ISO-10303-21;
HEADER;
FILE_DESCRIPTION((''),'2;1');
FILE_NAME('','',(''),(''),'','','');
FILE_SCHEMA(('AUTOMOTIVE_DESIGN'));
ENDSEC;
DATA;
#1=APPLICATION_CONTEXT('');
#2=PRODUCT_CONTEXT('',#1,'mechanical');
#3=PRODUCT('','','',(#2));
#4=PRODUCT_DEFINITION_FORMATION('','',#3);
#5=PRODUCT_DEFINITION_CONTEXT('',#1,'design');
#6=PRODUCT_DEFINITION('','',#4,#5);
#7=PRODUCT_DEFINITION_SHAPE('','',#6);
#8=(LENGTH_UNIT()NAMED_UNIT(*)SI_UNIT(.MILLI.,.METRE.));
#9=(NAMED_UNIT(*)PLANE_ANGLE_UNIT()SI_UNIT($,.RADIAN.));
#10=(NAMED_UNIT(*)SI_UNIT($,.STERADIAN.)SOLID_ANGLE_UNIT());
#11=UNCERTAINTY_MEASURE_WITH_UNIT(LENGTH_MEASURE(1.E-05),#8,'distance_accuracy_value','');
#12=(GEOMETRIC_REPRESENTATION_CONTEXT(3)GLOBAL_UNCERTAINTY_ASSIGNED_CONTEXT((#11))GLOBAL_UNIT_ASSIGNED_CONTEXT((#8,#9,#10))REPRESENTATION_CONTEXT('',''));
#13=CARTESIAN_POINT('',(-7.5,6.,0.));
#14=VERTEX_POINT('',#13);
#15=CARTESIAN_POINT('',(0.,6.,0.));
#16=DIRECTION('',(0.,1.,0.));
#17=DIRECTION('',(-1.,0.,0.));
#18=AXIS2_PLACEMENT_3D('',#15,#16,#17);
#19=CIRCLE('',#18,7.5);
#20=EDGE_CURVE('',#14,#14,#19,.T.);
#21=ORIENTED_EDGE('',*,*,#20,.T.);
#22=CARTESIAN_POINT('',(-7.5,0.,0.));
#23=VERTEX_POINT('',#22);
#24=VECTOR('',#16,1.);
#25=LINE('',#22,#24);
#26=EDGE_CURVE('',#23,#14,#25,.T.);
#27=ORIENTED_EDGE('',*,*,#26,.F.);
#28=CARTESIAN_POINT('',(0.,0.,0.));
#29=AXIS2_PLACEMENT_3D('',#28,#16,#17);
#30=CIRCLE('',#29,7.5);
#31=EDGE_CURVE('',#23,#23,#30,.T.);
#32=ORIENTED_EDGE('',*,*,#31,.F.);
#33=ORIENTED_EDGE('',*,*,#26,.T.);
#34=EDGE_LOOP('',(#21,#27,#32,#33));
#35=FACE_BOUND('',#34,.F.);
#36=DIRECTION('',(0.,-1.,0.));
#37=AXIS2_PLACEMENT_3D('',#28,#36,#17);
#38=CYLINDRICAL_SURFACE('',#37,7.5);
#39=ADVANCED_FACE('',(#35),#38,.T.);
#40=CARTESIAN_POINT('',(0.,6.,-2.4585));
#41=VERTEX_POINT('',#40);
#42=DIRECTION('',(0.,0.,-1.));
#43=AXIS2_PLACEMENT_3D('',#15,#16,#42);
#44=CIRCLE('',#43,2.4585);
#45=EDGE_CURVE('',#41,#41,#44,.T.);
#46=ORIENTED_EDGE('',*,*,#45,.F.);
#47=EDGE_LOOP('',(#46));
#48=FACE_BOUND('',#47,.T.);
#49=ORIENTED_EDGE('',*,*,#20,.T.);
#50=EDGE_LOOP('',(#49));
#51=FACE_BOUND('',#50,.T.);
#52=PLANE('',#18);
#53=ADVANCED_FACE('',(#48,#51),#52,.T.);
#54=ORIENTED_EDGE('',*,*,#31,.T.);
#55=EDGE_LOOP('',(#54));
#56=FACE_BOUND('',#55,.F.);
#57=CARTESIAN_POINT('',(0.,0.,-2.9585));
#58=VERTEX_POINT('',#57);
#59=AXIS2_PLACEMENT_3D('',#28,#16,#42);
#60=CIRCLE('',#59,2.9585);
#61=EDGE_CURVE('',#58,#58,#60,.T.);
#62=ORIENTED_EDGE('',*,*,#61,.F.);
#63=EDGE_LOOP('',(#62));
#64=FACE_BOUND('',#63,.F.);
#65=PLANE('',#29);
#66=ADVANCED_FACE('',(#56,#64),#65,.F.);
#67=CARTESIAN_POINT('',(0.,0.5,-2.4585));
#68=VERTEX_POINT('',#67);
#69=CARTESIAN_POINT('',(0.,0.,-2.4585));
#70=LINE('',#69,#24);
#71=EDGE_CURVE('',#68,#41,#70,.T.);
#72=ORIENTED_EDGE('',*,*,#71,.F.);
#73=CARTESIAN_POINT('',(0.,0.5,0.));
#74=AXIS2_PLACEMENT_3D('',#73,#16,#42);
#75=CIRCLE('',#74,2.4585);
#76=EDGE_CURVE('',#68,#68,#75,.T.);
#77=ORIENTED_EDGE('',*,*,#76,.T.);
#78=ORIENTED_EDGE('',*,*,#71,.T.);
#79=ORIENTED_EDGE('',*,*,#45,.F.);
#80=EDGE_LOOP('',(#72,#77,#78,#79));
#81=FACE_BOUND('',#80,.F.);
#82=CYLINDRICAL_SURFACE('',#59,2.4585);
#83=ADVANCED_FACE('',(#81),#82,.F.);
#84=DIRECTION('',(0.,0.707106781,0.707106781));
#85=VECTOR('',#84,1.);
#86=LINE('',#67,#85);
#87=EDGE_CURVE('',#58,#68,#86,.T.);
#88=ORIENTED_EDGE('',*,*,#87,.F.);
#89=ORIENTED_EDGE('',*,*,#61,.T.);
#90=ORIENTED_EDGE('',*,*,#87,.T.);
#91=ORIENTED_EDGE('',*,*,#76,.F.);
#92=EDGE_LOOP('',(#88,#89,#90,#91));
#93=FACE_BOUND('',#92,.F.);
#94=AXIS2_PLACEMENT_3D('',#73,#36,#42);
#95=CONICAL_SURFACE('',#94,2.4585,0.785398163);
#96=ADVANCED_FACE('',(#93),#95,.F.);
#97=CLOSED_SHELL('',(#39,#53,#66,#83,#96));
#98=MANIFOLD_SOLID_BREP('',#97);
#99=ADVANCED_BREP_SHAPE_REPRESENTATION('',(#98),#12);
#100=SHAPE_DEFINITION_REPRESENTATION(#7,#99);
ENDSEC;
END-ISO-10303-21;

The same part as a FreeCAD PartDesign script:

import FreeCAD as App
import Part
import Sketcher
Q = App.Units.Quantity


def edges_at(feature, points):
    """Names of the edges that pass closest to the given points."""
    edges = feature.Shape.Edges
    near = lambda p: min(range(len(edges)), key=lambda i: edges[i].distToShape(Part.Vertex(*p))[0])
    return sorted({f"Edge{near(p) + 1}" for p in points})

doc = App.newDocument("Part")
body = doc.addObject("PartDesign::Body", "Body")

sketch1 = body.newObject("Sketcher::SketchObject", "Sketch")
sketch1.AttachmentSupport = (doc.getObject("XZ_Plane"), [""])
sketch1.MapMode = "FlatFace"
sketch1.addGeometry(Part.Circle(App.Vector(0, 0, 0), App.Vector(0, 0, 1), 8), False)
sketch1.addConstraint(Sketcher.Constraint("Coincident", 0, 3, -1, 1))
sketch1.addConstraint(Sketcher.Constraint("Diameter", 0, Q("15 mm")))
pad1 = body.newObject("PartDesign::Pad", "Pad")
pad1.Profile = sketch1
pad1.Length = 6
pad1.Reversed = True

sketch2 = body.newObject("Sketcher::SketchObject", "Sketch001")
sketch2.AttachmentSupport = (doc.getObject("XZ_Plane"), [""])
sketch2.MapMode = "FlatFace"
sketch2.addGeometry(Part.Circle(App.Vector(0, 0, 0), App.Vector(0, 0, 1), 2.5), False)
sketch2.addConstraint(Sketcher.Constraint("Coincident", 0, 3, -1, 1))
sketch2.addConstraint(Sketcher.Constraint("Diameter", 0, Q("4.917 mm")))
doc.recompute()
hole = body.newObject("PartDesign::Hole", "Hole")
hole.Profile = sketch2
hole.ThreadType = "None"
hole.Diameter = 4.917
hole.DepthType = "ThroughAll"
doc.recompute()

chamfer = body.newObject("PartDesign::Chamfer", "Chamfer")
chamfer.Base = (hole, edges_at(hole, [(0, 0, 2.458)]))
chamfer.Size = 0.5

doc.recompute()
